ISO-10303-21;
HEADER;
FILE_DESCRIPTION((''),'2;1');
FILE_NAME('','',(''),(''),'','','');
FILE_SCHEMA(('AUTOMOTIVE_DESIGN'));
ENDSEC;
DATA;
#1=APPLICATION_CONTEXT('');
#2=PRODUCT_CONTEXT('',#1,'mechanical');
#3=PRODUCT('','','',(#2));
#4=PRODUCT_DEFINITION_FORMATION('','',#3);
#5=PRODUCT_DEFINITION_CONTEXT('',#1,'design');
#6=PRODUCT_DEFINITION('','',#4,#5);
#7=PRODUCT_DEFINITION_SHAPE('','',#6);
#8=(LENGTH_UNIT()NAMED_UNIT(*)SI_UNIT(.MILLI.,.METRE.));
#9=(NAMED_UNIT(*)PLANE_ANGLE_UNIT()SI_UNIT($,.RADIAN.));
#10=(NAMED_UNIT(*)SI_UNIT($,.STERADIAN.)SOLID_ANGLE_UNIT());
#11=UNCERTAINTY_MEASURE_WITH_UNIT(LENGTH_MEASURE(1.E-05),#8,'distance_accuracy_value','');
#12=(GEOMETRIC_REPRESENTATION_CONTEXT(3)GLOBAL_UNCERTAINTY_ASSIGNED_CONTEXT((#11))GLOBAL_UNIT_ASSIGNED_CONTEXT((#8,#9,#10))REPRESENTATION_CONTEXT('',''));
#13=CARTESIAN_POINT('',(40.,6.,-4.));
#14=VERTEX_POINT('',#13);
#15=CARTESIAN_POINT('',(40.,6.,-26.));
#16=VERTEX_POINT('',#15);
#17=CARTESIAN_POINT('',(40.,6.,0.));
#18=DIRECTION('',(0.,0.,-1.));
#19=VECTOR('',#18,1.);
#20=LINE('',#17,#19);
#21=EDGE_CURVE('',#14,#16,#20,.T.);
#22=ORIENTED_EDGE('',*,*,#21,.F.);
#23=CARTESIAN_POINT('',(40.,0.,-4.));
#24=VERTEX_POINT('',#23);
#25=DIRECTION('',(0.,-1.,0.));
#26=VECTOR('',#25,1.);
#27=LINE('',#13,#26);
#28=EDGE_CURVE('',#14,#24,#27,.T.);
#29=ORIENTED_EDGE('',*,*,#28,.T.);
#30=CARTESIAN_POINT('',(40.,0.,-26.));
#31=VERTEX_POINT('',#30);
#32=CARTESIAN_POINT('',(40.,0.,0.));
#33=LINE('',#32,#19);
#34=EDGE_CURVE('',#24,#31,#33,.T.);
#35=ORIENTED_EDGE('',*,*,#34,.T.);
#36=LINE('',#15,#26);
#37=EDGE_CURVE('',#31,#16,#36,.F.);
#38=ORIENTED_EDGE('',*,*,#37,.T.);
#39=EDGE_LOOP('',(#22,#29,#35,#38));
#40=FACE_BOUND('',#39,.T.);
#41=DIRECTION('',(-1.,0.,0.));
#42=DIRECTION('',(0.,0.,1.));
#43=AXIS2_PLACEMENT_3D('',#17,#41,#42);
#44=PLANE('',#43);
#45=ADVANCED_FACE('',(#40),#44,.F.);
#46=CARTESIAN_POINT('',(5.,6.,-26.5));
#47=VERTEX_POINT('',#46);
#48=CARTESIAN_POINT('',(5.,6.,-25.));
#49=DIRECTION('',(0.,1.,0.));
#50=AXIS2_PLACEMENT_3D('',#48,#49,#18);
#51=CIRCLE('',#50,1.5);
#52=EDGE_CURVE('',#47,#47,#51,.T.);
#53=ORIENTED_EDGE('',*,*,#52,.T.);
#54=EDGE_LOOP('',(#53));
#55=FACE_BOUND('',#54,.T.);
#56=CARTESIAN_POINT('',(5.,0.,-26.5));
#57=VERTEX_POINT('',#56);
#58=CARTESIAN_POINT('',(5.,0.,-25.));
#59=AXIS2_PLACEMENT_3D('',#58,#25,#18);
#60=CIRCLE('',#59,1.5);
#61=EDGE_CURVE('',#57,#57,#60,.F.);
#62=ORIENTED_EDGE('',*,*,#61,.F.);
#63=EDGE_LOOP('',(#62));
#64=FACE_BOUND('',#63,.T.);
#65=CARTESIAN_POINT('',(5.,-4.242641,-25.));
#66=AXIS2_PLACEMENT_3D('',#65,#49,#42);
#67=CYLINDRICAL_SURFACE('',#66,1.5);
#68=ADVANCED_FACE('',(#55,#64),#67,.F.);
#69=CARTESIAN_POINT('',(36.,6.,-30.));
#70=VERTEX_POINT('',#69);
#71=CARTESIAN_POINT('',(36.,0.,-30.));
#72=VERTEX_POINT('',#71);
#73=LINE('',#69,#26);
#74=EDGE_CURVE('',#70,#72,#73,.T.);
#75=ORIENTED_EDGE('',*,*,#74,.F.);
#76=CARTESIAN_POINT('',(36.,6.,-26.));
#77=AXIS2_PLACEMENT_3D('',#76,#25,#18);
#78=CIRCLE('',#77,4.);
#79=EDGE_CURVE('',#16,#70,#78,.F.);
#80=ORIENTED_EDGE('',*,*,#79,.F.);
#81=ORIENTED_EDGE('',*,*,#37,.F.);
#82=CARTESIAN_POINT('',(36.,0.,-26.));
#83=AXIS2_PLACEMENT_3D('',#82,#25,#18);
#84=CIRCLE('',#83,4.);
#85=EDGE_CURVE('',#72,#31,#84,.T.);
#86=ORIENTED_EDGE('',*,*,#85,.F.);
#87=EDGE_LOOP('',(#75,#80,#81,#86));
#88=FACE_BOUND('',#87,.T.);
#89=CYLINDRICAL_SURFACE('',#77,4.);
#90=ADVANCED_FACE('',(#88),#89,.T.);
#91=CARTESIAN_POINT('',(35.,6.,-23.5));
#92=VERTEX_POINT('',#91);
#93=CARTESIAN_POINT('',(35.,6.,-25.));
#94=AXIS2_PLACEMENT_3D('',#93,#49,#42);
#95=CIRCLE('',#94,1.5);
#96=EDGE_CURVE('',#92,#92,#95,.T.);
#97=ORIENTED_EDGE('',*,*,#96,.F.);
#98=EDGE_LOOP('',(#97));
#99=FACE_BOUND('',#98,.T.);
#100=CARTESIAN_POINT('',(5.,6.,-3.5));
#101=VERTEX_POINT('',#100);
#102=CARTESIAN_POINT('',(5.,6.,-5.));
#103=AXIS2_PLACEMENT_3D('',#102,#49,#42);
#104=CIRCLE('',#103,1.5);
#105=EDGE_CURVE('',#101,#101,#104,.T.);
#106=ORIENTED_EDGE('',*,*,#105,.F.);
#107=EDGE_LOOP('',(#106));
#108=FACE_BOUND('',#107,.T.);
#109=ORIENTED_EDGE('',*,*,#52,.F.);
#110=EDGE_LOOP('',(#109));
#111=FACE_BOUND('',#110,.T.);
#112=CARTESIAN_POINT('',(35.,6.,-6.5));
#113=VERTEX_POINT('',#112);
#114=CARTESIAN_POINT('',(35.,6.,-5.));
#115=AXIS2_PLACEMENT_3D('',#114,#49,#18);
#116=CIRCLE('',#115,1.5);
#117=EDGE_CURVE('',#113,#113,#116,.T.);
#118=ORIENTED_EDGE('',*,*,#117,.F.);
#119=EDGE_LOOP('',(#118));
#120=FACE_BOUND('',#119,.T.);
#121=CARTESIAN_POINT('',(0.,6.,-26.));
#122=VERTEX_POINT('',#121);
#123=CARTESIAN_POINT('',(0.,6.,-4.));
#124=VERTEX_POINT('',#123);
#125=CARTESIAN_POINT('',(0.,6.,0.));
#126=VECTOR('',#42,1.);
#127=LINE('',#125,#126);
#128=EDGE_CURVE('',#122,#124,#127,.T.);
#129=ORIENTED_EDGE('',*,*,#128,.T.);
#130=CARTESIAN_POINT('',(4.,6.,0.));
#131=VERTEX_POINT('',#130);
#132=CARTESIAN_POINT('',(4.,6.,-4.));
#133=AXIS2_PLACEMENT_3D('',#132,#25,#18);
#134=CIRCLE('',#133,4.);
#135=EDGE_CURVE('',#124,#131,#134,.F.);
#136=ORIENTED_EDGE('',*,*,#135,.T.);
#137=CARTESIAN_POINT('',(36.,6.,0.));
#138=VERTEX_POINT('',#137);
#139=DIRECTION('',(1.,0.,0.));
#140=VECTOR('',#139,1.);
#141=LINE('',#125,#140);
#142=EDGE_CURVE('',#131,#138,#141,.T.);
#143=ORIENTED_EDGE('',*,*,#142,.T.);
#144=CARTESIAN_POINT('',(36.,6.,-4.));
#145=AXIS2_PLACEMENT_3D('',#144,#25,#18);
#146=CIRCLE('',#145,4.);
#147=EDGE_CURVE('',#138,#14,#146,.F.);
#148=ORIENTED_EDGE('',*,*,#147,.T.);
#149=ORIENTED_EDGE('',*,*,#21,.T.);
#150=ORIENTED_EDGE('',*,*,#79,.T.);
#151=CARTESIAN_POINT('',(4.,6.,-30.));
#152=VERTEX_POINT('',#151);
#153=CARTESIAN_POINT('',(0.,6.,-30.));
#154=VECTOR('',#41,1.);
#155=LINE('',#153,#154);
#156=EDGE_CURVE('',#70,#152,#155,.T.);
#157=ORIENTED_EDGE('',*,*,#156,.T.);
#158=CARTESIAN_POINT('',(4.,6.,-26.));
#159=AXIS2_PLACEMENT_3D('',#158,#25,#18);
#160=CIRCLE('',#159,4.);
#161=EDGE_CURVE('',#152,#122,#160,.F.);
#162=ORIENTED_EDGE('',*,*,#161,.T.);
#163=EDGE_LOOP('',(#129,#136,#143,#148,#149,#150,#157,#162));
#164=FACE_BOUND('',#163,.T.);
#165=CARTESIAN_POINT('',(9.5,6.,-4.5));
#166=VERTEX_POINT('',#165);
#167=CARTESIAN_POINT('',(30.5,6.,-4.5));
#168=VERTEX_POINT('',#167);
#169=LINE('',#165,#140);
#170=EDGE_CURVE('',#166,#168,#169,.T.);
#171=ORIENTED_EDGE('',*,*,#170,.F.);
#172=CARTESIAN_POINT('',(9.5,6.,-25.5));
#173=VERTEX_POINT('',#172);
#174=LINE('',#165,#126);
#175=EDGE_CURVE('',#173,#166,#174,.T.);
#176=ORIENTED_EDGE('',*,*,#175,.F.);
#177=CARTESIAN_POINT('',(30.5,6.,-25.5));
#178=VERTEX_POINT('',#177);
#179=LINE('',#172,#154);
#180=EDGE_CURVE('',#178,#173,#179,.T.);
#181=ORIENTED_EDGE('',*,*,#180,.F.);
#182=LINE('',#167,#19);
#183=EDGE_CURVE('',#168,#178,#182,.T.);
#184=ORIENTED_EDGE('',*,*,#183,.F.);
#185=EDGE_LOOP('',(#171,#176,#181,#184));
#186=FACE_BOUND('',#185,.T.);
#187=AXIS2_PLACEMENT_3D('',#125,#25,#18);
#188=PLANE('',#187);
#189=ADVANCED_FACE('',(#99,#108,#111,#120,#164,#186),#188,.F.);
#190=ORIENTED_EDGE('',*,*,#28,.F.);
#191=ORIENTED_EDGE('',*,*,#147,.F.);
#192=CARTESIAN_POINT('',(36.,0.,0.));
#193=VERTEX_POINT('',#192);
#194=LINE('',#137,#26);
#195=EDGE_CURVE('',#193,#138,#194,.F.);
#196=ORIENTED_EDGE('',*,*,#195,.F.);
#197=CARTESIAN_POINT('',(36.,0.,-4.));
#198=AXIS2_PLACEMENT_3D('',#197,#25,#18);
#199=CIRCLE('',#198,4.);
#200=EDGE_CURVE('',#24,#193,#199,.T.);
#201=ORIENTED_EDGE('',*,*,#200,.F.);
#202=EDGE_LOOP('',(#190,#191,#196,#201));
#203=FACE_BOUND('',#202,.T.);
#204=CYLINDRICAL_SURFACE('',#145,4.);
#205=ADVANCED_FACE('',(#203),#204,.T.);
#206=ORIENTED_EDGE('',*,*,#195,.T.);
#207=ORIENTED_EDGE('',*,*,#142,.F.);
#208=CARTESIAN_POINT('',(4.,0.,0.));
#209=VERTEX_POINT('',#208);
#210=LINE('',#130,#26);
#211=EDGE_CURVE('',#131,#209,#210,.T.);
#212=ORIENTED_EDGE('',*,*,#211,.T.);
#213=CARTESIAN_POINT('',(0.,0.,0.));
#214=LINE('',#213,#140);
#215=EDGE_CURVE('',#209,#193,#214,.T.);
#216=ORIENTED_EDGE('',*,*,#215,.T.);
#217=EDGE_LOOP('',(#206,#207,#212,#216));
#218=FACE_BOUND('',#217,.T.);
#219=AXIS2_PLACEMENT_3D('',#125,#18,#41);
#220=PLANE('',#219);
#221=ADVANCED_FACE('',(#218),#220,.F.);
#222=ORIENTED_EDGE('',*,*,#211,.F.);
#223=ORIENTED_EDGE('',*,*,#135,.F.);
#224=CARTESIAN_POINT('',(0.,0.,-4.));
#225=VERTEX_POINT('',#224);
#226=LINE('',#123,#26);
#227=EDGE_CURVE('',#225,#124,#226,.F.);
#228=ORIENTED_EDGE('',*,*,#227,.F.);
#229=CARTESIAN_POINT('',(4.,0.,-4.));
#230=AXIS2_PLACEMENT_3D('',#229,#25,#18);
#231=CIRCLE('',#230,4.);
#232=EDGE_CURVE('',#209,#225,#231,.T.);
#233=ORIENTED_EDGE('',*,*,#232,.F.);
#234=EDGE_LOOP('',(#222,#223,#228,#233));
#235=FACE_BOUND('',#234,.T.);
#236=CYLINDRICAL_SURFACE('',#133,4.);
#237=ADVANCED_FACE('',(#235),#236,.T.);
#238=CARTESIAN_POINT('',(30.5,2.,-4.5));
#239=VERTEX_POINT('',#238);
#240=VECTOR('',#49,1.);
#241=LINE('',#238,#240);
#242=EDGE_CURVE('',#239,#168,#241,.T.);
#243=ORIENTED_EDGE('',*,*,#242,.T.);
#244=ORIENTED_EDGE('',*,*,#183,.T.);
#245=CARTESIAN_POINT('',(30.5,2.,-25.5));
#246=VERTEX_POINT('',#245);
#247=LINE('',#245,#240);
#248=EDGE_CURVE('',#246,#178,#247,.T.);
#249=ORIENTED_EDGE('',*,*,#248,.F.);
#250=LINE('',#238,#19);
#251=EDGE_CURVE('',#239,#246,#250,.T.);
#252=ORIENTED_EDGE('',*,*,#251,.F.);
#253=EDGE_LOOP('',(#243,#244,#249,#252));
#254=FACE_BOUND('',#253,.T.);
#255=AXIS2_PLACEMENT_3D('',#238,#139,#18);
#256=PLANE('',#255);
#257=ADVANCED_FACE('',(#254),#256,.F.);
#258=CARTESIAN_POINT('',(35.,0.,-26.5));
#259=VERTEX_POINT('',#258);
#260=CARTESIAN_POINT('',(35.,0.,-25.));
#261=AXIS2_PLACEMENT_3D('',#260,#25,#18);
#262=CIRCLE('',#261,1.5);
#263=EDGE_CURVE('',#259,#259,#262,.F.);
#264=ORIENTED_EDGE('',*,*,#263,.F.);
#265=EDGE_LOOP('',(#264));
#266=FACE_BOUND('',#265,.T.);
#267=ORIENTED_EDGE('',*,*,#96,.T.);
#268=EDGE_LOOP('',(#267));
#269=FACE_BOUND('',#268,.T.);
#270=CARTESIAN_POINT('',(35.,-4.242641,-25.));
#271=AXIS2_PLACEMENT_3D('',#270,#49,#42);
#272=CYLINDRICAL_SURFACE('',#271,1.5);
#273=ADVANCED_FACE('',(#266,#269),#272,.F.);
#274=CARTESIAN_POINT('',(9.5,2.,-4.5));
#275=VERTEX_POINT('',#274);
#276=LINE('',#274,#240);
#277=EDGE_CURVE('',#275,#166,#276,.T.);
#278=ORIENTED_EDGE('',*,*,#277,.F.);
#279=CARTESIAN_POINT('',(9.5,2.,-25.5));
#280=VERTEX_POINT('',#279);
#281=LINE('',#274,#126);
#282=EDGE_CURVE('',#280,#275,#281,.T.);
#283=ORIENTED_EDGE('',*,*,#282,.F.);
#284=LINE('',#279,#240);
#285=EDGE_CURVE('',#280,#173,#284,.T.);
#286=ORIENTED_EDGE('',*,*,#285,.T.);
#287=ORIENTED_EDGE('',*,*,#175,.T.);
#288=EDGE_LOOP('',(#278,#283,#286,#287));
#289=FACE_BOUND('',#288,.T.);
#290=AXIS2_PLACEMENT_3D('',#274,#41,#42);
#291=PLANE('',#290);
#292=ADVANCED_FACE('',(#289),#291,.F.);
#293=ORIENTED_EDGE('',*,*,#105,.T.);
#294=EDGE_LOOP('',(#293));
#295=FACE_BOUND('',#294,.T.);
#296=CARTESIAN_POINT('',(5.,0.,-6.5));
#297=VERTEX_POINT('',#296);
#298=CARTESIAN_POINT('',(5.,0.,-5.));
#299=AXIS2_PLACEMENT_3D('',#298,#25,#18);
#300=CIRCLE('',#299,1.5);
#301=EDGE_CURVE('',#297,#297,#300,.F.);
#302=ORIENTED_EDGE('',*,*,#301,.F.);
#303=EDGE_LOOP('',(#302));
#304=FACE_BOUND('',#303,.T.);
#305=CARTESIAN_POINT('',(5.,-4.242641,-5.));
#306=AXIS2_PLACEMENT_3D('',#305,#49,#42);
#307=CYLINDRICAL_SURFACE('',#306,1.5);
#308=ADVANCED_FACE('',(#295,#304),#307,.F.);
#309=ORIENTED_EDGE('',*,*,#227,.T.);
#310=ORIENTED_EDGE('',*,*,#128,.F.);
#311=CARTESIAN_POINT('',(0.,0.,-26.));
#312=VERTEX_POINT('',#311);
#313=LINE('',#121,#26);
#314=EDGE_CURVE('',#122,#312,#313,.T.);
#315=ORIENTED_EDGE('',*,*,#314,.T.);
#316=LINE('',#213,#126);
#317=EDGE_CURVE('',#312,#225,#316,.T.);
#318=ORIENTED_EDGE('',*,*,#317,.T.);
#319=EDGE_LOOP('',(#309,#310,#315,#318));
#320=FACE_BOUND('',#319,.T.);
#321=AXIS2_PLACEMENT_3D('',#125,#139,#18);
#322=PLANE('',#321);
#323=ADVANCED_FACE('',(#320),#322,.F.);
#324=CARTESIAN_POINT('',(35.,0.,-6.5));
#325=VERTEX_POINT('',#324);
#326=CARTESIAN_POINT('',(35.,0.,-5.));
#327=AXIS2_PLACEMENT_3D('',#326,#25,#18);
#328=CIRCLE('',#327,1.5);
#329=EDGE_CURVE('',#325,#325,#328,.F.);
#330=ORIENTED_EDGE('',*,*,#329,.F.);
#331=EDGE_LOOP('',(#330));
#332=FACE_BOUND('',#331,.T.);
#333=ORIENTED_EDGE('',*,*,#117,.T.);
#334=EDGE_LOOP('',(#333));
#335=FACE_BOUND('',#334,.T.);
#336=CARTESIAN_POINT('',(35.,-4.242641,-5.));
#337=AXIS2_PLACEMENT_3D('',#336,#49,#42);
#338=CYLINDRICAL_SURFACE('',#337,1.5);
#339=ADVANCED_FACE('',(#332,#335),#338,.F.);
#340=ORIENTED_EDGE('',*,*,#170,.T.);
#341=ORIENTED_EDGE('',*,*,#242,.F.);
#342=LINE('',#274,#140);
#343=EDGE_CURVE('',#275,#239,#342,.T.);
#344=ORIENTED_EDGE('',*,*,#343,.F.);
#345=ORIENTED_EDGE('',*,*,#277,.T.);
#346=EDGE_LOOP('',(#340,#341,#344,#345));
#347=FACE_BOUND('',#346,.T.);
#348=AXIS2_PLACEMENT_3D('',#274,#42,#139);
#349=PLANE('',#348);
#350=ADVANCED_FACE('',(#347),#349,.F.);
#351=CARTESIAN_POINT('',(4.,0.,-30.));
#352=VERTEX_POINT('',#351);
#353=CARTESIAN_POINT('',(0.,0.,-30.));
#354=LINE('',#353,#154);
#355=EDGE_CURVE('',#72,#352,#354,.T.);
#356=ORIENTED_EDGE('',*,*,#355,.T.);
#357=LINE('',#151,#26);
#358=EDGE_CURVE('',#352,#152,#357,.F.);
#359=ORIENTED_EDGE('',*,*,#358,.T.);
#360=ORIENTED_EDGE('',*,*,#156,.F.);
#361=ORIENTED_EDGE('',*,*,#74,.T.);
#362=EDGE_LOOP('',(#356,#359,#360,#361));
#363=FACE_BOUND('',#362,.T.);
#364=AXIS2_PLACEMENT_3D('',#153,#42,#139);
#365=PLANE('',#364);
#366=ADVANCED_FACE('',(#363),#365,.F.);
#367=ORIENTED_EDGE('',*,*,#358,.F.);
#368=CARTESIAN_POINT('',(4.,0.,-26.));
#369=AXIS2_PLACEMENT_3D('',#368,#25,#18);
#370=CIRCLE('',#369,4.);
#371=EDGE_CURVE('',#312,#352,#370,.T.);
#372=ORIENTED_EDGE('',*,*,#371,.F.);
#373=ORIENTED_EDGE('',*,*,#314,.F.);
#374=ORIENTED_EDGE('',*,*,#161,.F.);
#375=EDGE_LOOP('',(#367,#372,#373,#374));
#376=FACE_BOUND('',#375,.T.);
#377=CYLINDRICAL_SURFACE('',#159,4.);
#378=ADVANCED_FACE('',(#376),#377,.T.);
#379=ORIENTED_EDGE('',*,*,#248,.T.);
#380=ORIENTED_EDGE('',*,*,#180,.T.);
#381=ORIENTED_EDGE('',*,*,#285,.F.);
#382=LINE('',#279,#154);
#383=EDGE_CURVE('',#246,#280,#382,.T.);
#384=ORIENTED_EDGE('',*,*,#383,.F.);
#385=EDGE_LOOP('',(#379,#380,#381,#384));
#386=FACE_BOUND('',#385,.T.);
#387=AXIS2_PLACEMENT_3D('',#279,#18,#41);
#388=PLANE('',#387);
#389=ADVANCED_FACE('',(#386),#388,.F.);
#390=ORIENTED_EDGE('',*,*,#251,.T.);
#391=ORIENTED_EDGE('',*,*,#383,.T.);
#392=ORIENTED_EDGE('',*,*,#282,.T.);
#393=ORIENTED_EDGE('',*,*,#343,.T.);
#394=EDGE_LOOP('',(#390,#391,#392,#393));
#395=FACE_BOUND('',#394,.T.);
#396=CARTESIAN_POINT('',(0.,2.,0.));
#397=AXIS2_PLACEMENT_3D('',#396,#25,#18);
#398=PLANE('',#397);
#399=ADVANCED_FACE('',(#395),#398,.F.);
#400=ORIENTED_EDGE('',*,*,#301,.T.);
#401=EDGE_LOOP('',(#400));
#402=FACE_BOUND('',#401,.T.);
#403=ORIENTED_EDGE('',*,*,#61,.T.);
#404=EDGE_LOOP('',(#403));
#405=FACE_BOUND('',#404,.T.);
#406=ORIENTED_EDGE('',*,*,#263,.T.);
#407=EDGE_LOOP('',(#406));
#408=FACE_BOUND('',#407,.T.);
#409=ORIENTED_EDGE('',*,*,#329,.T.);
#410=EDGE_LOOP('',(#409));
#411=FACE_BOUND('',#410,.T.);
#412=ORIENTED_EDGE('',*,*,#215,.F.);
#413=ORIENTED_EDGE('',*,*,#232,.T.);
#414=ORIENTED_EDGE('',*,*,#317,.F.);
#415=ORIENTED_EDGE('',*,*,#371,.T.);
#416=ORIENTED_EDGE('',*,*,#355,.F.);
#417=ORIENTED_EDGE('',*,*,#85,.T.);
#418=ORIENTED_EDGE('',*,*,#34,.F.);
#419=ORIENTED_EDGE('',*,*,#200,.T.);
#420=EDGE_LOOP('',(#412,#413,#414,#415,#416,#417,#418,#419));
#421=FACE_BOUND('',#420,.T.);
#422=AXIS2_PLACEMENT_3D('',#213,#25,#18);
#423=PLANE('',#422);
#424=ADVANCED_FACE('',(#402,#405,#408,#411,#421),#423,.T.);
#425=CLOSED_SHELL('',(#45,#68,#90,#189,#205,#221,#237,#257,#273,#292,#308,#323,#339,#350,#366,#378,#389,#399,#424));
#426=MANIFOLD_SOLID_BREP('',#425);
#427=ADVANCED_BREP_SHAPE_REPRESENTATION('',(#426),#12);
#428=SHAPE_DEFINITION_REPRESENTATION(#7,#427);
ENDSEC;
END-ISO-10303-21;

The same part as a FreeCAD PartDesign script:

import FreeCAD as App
import Part
import Sketcher

V = App.Vector


def edges_at(feature, points):
    """Names of the edges that pass closest to the given points."""
    edges = feature.Shape.Edges
    near = lambda p: min(range(len(edges)), key=lambda i: edges[i].distToShape(Part.Vertex(*p))[0])
    return sorted({f"Edge{near(p) + 1}" for p in points})

doc = App.newDocument("Part")
body = doc.addObject("PartDesign::Body", "Body")

# Sketch on XZ plane
sketch1 = doc.addObject("Sketcher::SketchObject", "Sketch")
body.addObject(sketch1)
sketch1.AttachmentSupport = (doc.XZ_Plane, [""])
sketch1.MapMode = "FlatFace"
sketch1.addGeometry(Part.LineSegment(V(0, -30, 0), V(0, 0, 0)), False)
sketch1.addGeometry(Part.LineSegment(V(0, 0, 0), V(40, 0, 0)), False)
sketch1.addGeometry(Part.LineSegment(V(40, 0, 0), V(40, -30, 0)), False)
sketch1.addGeometry(Part.LineSegment(V(40, -30, 0), V(0, -30, 0)), False)
sketch1.addConstraint(Sketcher.Constraint("Coincident", 0, 2, 1, 1))
sketch1.addConstraint(Sketcher.Constraint("Coincident", 1, 2, 2, 1))
sketch1.addConstraint(Sketcher.Constraint("Coincident", 2, 2, 3, 1))
sketch1.addConstraint(Sketcher.Constraint("Coincident", 3, 2, 0, 1))
sketch1.addConstraint(Sketcher.Constraint("Vertical", 0))
sketch1.addConstraint(Sketcher.Constraint("Horizontal", 1))
sketch1.addConstraint(Sketcher.Constraint("Vertical", 2))
sketch1.addConstraint(Sketcher.Constraint("Horizontal", 3))
sketch1.addConstraint(Sketcher.Constraint("Coincident", 0, 2, -1, 1))
sketch1.addConstraint(Sketcher.Constraint("DistanceX", 1, 1, 1, 2, 40.0))
sketch1.addConstraint(Sketcher.Constraint("DistanceY", 0, 1, 0, 2, 30.0))
pad1 = doc.addObject("PartDesign::Pad", "Pad")
body.addObject(pad1)
pad1.Profile = sketch1
pad1.Length = 6
pad1.Reversed = True

# Sketch on XZ plane
sketch2 = doc.addObject("Sketcher::SketchObject", "Sketch001")
body.addObject(sketch2)
sketch2.AttachmentSupport = (doc.XZ_Plane, [""])
sketch2.MapMode = "FlatFace"
sketch2.AttachmentOffset = App.Placement(V(0, 0, -6), App.Rotation())
sketch2.addGeometry(Part.Circle(V(5, -5, 0), V(0, 0, 1), 1.5), False)
sketch2.addGeometry(Part.Circle(V(5, -25, 0), V(0, 0, 1), 1.5), False)
sketch2.addGeometry(Part.Circle(V(35, -5, 0), V(0, 0, 1), 1.5), False)
sketch2.addGeometry(Part.Circle(V(35, -25, 0), V(0, 0, 1), 1.5), False)
sketch2.addConstraint(Sketcher.Constraint("Equal", 0, 1))
sketch2.addConstraint(Sketcher.Constraint("Equal", 1, 2))
sketch2.addConstraint(Sketcher.Constraint("Equal", 2, 3))
sketch2.addConstraint(Sketcher.Constraint("Horizontal", 0, 3, 2, 3))
sketch2.addConstraint(Sketcher.Constraint("Horizontal", 1, 3, 3, 3))
sketch2.addConstraint(Sketcher.Constraint("Vertical", 0, 3, 1, 3))
sketch2.addConstraint(Sketcher.Constraint("Vertical", 2, 3, 3, 3))
sketch2.addConstraint(Sketcher.Constraint("Diameter", 0, 3.0))
sketch2.addConstraint(Sketcher.Constraint("DistanceX", -1, 1, 0, 3, 5.0))
sketch2.addConstraint(Sketcher.Constraint("DistanceY", 0, 3, -1, 1, 5.0))
sketch2.addConstraint(Sketcher.Constraint("DistanceY", 1, 3, -1, 1, 25.0))
sketch2.addConstraint(Sketcher.Constraint("DistanceX", -1, 1, 2, 3, 35.0))
pocket1 = doc.addObject("PartDesign::Pocket", "Pocket")
body.addObject(pocket1)
pocket1.Profile = sketch2
pocket1.Length = 6
pocket1.Reversed = True
doc.recompute()

fillet = doc.addObject("PartDesign::Fillet", "Fillet")
body.addObject(fillet)
fillet.Base = (pocket1, edges_at(pocket1, [
    (0, 3, -30),
    (40, 3, -30),
    (40, 3, 0),
    (0, 3, 0),
]))
fillet.Radius = 4

# Sketch on XZ plane
sketch3 = doc.addObject("Sketcher::SketchObject", "Sketch002")
body.addObject(sketch3)
sketch3.AttachmentSupport = (doc.XZ_Plane, [""])
sketch3.MapMode = "FlatFace"
sketch3.AttachmentOffset = App.Placement(V(0, 0, -6), App.Rotation())
sketch3.addGeometry(Part.LineSegment(V(9.5, -25.5, 0), V(9.5, -4.5, 0)), False)
sketch3.addGeometry(Part.LineSegment(V(9.5, -4.5, 0), V(30.5, -4.5, 0)), False)
sketch3.addGeometry(Part.LineSegment(V(30.5, -4.5, 0), V(30.5, -25.5, 0)), False)
sketch3.addGeometry(Part.LineSegment(V(30.5, -25.5, 0), V(9.5, -25.5, 0)), False)
sketch3.addConstraint(Sketcher.Constraint("Coincident", 0, 2, 1, 1))
sketch3.addConstraint(Sketcher.Constraint("Coincident", 1, 2, 2, 1))
sketch3.addConstraint(Sketcher.Constraint("Coincident", 2, 2, 3, 1))
sketch3.addConstraint(Sketcher.Constraint("Coincident", 3, 2, 0, 1))
sketch3.addConstraint(Sketcher.Constraint("Vertical", 0))
sketch3.addConstraint(Sketcher.Constraint("Horizontal", 1))
sketch3.addConstraint(Sketcher.Constraint("Vertical", 2))
sketch3.addConstraint(Sketcher.Constraint("Horizontal", 3))
sketch3.addConstraint(Sketcher.Constraint("Equal", 3, 0))
sketch3.addConstraint(Sketcher.Constraint("DistanceX", 1, 1, 1, 2, 21.0))
sketch3.addConstraint(Sketcher.Constraint("DistanceX", -1, 1, 0, 2, 9.5))
sketch3.addConstraint(Sketcher.Constraint("DistanceY", 0, 2, -1, 1, 4.5))
pocket2 = doc.addObject("PartDesign::Pocket", "Pocket001")
body.addObject(pocket2)
pocket2.Profile = sketch3
pocket2.Length = 4
pocket2.Reversed = True

doc.recompute()
